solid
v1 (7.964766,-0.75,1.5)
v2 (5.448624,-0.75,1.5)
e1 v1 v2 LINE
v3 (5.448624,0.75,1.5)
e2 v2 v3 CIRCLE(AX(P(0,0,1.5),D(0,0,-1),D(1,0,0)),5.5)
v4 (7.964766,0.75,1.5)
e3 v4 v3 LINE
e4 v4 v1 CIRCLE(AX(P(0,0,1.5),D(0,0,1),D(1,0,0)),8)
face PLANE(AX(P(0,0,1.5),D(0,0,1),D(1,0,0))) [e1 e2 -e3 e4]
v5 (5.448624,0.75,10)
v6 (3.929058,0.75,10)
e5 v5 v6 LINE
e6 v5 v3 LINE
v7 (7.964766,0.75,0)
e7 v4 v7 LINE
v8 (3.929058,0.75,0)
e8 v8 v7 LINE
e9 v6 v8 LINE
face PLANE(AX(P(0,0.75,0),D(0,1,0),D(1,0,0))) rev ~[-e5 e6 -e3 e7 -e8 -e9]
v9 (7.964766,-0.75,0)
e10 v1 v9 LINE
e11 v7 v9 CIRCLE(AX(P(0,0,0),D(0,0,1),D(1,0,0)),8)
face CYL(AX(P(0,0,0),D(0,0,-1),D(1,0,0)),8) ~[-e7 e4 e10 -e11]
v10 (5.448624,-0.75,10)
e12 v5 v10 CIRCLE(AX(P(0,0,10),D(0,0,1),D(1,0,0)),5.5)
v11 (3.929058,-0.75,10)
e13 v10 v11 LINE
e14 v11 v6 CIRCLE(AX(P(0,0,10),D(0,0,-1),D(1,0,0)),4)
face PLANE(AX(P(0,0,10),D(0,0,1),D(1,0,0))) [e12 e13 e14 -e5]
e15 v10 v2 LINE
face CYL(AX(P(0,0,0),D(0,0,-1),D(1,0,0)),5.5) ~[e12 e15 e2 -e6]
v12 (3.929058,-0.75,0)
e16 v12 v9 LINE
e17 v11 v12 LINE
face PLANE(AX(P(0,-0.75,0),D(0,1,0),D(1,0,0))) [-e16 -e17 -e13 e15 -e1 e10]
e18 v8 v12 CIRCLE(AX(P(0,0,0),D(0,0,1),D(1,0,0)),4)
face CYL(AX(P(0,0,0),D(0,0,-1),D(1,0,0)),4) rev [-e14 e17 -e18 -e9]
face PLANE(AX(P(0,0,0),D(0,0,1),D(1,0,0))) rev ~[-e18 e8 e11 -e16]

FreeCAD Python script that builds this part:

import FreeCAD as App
import Part
import Sketcher

doc = App.newDocument("Part")
body = doc.addObject("PartDesign::Body", "Body")

# Sketch on XY plane
sketch1 = doc.addObject("Sketcher::SketchObject", "Sketch")
body.addObject(sketch1)
sketch1.AttachmentSupport = (doc.XY_Plane, [""])
sketch1.MapMode = "FlatFace"
sketch1.addGeometry(Part.LineSegment(App.Vector(0, 0.75, 0), App.Vector(0, -0.75, 0)), False)
sketch1.addGeometry(Part.LineSegment(App.Vector(0, -0.75, 0), App.Vector(11, -0.75, 0)), False)
sketch1.addGeometry(Part.LineSegment(App.Vector(11, -0.75, 0), App.Vector(11, 0.75, 0)), False)
sketch1.addGeometry(Part.LineSegment(App.Vector(11, 0.75, 0), App.Vector(0, 0.75, 0)), False)
sketch1.addConstraint(Sketcher.Constraint("Coincident", 0, 2, 1, 1))
sketch1.addConstraint(Sketcher.Constraint("Coincident", 1, 2, 2, 1))
sketch1.addConstraint(Sketcher.Constraint("Coincident", 2, 2, 3, 1))
sketch1.addConstraint(Sketcher.Constraint("Coincident", 3, 2, 0, 1))
sketch1.addConstraint(Sketcher.Constraint("Vertical", 0))
sketch1.addConstraint(Sketcher.Constraint("Horizontal", 1))
sketch1.addConstraint(Sketcher.Constraint("Vertical", 2))
sketch1.addConstraint(Sketcher.Constraint("Horizontal", 3))
sketch1.addConstraint(Sketcher.Constraint("Symmetric", 0, 2, 3, 2, -1, 1))
sketch1.addConstraint(Sketcher.Constraint("DistanceX", 1, 1, 1, 2, 11.0))
sketch1.addConstraint(Sketcher.Constraint("DistanceY", 0, 2, 0, 1, 1.5))
pad1 = doc.addObject("PartDesign::Pad", "Pad")
body.addObject(pad1)
pad1.Profile = sketch1
pad1.Length = 15
body2 = doc.addObject("PartDesign::Body", "Body001")

# Sketch on XY plane
sketch2 = doc.addObject("Sketcher::SketchObject", "Sketch001")
body2.addObject(sketch2)
sketch2.AttachmentSupport = (doc.getObject("XY_Plane001"), [""])
sketch2.MapMode = "FlatFace"
sketch2.addGeometry(Part.Circle(App.Vector(0, 0, 0), App.Vector(0, 0, 1), 4), False)
sketch2.addConstraint(Sketcher.Constraint("Coincident", 0, 3, -1, 1))
sketch2.addConstraint(Sketcher.Constraint("Diameter", 0, 8.0))
pad2 = doc.addObject("PartDesign::Pad", "Pad001")
body2.addObject(pad2)
pad2.Profile = sketch2
pad2.Length = 15
body3 = doc.addObject("PartDesign::Body", "Body002")

# Sketch on XY plane
sketch3 = doc.addObject("Sketcher::SketchObject", "Sketch002")
body3.addObject(sketch3)
sketch3.AttachmentSupport = (doc.getObject("XY_Plane002"), [""])
sketch3.MapMode = "FlatFace"
sketch3.addGeometry(Part.Circle(App.Vector(0, 0, 0), App.Vector(0, 0, 1), 8), False)
sketch3.addConstraint(Sketcher.Constraint("Coincident", 0, 3, -1, 1))
sketch3.addConstraint(Sketcher.Constraint("Diameter", 0, 16.0))
pad3 = doc.addObject("PartDesign::Pad", "Pad002")
body3.addObject(pad3)
pad3.Profile = sketch3
pad3.Length = 1.5
body4 = doc.addObject("PartDesign::Body", "Body003")

# Sketch on XY plane
sketch4 = doc.addObject("Sketcher::SketchObject", "Sketch003")
body4.addObject(sketch4)
sketch4.AttachmentSupport = (doc.getObject("XY_Plane003"), [""])
sketch4.MapMode = "FlatFace"
sketch4.addGeometry(Part.Circle(App.Vector(0, 0, 0), App.Vector(0, 0, 1), 5.5), False)
sketch4.addConstraint(Sketcher.Constraint("Coincident", 0, 3, -1, 1))
sketch4.addConstraint(Sketcher.Constraint("Diameter", 0, 11.0))
pad4 = doc.addObject("PartDesign::Pad", "Pad003")
body4.addObject(pad4)
pad4.Profile = sketch4
pad4.Length = 10
doc.recompute()

boolean = doc.addObject("PartDesign::Boolean", "Boolean")
body4.addObject(boolean)
boolean.Type = "Fuse"
boolean.addObjects([body3])
doc.recompute()

boolean2 = doc.addObject("PartDesign::Boolean", "Boolean001")
body4.addObject(boolean2)
boolean2.Type = "Cut"
boolean2.addObjects([body2])
doc.recompute()

boolean3 = doc.addObject("PartDesign::Boolean", "Boolean002")
body4.addObject(boolean3)
boolean3.Type = "Cut"
boolean3.addObjects([body])

doc.recompute()
